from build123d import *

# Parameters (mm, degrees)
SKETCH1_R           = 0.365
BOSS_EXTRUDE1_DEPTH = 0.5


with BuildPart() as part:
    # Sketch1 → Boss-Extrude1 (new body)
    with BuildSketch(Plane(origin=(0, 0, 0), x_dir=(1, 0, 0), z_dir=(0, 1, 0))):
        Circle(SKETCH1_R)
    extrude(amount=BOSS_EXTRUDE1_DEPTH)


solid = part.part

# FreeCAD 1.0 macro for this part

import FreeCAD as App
import Part
import Sketcher

V = App.Vector

doc = App.newDocument("Part")
body = doc.addObject("PartDesign::Body", "Body")

sketch1 = body.newObject("Sketcher::SketchObject", "Sketch")
sketch1.AttachmentSupport = (doc.getObject("XZ_Plane"), [""])
sketch1.MapMode = "FlatFace"
sketch1.addGeometry(Part.Circle(V(0, 0, 0), V(0, 0, 1), 0.36), False)
sketch1.addConstraint([
    Sketcher.Constraint("Coincident", 0, 3, -1, 1),
    Sketcher.Constraint("Diameter", 0, 0.73),
])
pad1 = body.newObject("PartDesign::Pad", "Pad")
pad1.Profile = sketch1
pad1.Length = 0.5
pad1.Reversed = True

doc.recompute()
